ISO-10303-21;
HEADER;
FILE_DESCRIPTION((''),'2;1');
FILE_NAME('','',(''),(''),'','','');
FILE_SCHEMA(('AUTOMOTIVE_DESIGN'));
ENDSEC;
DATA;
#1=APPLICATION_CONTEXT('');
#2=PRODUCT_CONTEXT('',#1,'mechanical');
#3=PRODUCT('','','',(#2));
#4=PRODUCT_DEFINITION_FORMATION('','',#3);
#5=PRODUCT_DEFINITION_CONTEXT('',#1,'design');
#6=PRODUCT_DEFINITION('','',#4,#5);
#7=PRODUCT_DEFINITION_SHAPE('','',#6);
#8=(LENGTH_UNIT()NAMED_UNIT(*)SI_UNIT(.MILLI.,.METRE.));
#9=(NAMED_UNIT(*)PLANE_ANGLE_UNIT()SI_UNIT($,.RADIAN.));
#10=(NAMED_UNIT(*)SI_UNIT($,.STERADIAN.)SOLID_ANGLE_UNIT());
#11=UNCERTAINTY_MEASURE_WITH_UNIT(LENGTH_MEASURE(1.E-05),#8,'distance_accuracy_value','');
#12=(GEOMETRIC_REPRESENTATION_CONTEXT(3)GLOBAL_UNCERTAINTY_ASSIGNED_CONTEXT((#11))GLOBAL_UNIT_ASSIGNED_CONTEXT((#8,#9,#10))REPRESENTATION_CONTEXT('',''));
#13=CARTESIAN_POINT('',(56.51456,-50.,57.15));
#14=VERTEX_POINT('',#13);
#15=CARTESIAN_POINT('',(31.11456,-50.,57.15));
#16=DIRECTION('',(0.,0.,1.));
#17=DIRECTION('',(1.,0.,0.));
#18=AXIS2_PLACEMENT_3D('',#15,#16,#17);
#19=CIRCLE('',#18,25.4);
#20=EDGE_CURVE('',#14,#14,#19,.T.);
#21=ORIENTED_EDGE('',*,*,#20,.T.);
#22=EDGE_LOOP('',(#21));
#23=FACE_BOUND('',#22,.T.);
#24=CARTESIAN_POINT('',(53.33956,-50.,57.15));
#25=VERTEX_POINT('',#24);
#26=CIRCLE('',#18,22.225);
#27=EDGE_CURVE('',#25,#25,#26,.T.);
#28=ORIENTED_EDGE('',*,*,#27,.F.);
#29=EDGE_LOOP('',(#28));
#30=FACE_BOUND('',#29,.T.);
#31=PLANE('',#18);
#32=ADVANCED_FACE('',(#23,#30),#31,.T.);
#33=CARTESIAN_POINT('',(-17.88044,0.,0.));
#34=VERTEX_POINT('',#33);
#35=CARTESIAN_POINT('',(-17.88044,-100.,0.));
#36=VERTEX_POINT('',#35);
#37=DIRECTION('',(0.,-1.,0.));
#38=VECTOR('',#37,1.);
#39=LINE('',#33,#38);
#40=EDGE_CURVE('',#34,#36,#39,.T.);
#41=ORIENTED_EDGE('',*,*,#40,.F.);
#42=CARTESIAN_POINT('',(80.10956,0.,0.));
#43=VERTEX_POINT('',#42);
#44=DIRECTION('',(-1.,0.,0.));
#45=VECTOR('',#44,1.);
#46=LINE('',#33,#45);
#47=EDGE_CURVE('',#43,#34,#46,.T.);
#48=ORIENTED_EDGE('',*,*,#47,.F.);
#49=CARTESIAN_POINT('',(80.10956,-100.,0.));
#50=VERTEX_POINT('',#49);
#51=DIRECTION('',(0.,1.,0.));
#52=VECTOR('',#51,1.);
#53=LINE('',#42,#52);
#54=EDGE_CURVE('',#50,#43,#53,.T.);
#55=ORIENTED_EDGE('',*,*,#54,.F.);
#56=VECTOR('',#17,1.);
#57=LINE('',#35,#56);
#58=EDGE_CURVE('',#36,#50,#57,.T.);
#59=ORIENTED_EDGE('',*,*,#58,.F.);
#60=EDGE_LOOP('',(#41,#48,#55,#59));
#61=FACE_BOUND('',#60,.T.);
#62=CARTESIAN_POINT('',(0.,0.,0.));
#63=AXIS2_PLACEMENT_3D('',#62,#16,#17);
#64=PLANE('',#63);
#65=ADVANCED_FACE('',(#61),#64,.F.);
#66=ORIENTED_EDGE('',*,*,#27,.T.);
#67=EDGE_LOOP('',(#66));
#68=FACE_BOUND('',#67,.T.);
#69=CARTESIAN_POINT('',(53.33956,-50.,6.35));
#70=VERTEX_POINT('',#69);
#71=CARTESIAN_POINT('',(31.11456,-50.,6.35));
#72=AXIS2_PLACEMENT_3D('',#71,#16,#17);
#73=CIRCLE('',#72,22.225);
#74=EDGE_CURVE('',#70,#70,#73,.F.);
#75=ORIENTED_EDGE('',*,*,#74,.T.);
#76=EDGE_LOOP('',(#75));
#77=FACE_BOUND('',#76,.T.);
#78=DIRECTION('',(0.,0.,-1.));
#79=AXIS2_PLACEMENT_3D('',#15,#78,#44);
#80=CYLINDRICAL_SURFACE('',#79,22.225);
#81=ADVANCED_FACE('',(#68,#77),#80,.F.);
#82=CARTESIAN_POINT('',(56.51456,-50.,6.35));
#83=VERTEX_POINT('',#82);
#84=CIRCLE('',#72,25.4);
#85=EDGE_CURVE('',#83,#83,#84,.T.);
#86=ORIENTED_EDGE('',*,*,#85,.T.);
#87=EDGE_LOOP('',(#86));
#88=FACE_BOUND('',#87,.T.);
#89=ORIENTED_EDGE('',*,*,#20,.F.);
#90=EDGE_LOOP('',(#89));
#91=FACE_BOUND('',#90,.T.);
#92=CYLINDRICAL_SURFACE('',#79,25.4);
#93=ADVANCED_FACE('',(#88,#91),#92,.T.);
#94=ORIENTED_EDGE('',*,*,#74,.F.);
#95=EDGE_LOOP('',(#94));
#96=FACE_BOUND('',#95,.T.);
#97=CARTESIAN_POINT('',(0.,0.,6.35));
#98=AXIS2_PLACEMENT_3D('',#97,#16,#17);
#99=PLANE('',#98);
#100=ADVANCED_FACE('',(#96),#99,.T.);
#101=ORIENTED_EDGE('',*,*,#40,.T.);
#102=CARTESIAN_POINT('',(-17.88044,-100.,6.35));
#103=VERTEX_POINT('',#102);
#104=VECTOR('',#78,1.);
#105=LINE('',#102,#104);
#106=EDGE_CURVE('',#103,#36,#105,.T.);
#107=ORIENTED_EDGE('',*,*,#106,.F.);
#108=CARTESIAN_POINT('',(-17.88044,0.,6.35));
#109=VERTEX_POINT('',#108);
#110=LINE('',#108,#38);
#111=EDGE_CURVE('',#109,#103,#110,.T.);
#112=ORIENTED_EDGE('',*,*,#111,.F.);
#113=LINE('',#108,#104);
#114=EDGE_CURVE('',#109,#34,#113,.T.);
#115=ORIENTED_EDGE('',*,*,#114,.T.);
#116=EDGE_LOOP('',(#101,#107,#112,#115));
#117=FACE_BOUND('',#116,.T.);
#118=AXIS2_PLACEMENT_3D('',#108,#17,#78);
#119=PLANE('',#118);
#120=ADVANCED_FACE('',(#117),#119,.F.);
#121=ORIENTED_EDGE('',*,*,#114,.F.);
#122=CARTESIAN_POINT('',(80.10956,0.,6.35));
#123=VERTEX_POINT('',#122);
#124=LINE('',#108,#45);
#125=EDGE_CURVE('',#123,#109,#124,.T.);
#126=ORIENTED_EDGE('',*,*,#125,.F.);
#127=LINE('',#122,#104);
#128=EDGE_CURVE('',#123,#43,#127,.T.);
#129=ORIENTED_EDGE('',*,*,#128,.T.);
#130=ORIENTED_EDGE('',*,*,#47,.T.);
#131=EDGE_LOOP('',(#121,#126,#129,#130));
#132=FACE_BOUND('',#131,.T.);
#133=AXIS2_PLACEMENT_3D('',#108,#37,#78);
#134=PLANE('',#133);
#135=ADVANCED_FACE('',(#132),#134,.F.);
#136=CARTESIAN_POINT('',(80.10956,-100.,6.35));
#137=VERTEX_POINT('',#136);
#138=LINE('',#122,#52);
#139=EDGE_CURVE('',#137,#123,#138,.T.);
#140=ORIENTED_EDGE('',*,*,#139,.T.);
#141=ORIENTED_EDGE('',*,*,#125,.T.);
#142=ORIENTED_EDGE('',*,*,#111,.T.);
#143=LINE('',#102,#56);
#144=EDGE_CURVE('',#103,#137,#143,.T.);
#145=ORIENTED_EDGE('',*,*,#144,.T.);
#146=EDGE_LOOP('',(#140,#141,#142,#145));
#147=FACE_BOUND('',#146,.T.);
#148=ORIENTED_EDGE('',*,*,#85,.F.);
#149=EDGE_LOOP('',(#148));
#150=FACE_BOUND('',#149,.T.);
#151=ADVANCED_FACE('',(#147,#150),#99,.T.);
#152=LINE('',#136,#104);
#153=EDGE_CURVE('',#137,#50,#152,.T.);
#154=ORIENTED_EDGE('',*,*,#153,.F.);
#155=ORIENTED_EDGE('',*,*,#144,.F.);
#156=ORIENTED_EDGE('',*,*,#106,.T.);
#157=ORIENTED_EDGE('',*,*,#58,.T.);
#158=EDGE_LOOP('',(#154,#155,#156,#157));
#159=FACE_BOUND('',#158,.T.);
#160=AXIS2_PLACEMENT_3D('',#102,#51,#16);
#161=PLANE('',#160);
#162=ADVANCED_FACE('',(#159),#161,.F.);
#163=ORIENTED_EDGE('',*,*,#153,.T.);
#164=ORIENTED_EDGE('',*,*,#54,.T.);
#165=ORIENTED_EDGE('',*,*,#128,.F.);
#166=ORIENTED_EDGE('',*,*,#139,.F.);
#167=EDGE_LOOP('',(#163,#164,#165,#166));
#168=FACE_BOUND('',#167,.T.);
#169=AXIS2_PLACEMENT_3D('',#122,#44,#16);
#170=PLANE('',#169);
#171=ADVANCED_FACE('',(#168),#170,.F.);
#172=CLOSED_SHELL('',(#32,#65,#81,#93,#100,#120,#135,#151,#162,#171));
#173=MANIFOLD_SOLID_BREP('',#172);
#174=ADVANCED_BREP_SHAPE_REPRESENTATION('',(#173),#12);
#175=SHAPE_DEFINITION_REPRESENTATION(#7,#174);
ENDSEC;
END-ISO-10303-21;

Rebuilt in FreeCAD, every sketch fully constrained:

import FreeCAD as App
import Part
import Sketcher

V = App.Vector
Q = App.Units.Quantity

doc = App.newDocument("Part")
body = doc.addObject("PartDesign::Body", "Body")

sketch1 = doc.addObject("Sketcher::SketchObject", "Sketch")
body.addObject(sketch1)
sketch1.AttachmentSupport = (doc.XY_Plane, [""])
sketch1.MapMode = "FlatFace"
sketch1.addGeometry([
    Part.LineSegment(V(-17.88044, 0, 0), V(-17.88044, -100, 0)),
    Part.LineSegment(V(-17.88044, -100, 0), V(80.10956, -100, 0)),
    Part.LineSegment(V(80.10956, -100, 0), V(80.10956, 0, 0)),
    Part.LineSegment(V(80.10956, 0, 0), V(-17.88044, 0, 0)),
], False)
sketch1.addConstraint([
    Sketcher.Constraint("Coincident", 0, 2, 1, 1),
    Sketcher.Constraint("Coincident", 1, 2, 2, 1),
    Sketcher.Constraint("Coincident", 2, 2, 3, 1),
    Sketcher.Constraint("Coincident", 3, 2, 0, 1),
    Sketcher.Constraint("Vertical", 0),
    Sketcher.Constraint("Horizontal", 1),
    Sketcher.Constraint("Vertical", 2),
    Sketcher.Constraint("Horizontal", 3),
    Sketcher.Constraint("PointOnObject", 2, 2, -1),
    Sketcher.Constraint("DistanceX", 1, 1, 1, 2, Q("97.99 mm")),
    Sketcher.Constraint("DistanceY", 0, 2, 0, 1, Q("100 mm")),
    Sketcher.Constraint("DistanceX", 0, 2, -1, 1, Q("17.88044 mm")),
])
pad1 = doc.addObject("PartDesign::Pad", "Pad")
body.addObject(pad1)
pad1.Profile = sketch1
pad1.Length = Q("0.25 in")

sketch2 = doc.addObject("Sketcher::SketchObject", "Sketch001")
body.addObject(sketch2)
sketch2.AttachmentSupport = (doc.XY_Plane, [""])
sketch2.MapMode = "FlatFace"
sketch2.AttachmentOffset = App.Placement(V(0, 0, 0.25 * 25.4), App.Rotation())
sketch2.addGeometry([
    Part.Circle(V(31.11456, -50, 0), V(0, 0, 1), 25.4),
    Part.Circle(V(31.11456, -50, 0), V(0, 0, 1), 22.225),
], False)
sketch2.addConstraint([
    Sketcher.Constraint("Coincident", 1, 3, 0, 3),
    Sketcher.Constraint("Diameter", 0, Q("2 in")),
    Sketcher.Constraint("Diameter", 1, Q("1.75 in")),
    Sketcher.Constraint("DistanceY", 0, 3, -1, 1, Q("50 mm")),
    Sketcher.Constraint("DistanceX", -1, 1, 0, 3, Q("31.11456 mm")),
])
pad2 = doc.addObject("PartDesign::Pad", "Pad001")
body.addObject(pad2)
pad2.Profile = sketch2
pad2.Length = Q("2 in")

doc.recompute()
